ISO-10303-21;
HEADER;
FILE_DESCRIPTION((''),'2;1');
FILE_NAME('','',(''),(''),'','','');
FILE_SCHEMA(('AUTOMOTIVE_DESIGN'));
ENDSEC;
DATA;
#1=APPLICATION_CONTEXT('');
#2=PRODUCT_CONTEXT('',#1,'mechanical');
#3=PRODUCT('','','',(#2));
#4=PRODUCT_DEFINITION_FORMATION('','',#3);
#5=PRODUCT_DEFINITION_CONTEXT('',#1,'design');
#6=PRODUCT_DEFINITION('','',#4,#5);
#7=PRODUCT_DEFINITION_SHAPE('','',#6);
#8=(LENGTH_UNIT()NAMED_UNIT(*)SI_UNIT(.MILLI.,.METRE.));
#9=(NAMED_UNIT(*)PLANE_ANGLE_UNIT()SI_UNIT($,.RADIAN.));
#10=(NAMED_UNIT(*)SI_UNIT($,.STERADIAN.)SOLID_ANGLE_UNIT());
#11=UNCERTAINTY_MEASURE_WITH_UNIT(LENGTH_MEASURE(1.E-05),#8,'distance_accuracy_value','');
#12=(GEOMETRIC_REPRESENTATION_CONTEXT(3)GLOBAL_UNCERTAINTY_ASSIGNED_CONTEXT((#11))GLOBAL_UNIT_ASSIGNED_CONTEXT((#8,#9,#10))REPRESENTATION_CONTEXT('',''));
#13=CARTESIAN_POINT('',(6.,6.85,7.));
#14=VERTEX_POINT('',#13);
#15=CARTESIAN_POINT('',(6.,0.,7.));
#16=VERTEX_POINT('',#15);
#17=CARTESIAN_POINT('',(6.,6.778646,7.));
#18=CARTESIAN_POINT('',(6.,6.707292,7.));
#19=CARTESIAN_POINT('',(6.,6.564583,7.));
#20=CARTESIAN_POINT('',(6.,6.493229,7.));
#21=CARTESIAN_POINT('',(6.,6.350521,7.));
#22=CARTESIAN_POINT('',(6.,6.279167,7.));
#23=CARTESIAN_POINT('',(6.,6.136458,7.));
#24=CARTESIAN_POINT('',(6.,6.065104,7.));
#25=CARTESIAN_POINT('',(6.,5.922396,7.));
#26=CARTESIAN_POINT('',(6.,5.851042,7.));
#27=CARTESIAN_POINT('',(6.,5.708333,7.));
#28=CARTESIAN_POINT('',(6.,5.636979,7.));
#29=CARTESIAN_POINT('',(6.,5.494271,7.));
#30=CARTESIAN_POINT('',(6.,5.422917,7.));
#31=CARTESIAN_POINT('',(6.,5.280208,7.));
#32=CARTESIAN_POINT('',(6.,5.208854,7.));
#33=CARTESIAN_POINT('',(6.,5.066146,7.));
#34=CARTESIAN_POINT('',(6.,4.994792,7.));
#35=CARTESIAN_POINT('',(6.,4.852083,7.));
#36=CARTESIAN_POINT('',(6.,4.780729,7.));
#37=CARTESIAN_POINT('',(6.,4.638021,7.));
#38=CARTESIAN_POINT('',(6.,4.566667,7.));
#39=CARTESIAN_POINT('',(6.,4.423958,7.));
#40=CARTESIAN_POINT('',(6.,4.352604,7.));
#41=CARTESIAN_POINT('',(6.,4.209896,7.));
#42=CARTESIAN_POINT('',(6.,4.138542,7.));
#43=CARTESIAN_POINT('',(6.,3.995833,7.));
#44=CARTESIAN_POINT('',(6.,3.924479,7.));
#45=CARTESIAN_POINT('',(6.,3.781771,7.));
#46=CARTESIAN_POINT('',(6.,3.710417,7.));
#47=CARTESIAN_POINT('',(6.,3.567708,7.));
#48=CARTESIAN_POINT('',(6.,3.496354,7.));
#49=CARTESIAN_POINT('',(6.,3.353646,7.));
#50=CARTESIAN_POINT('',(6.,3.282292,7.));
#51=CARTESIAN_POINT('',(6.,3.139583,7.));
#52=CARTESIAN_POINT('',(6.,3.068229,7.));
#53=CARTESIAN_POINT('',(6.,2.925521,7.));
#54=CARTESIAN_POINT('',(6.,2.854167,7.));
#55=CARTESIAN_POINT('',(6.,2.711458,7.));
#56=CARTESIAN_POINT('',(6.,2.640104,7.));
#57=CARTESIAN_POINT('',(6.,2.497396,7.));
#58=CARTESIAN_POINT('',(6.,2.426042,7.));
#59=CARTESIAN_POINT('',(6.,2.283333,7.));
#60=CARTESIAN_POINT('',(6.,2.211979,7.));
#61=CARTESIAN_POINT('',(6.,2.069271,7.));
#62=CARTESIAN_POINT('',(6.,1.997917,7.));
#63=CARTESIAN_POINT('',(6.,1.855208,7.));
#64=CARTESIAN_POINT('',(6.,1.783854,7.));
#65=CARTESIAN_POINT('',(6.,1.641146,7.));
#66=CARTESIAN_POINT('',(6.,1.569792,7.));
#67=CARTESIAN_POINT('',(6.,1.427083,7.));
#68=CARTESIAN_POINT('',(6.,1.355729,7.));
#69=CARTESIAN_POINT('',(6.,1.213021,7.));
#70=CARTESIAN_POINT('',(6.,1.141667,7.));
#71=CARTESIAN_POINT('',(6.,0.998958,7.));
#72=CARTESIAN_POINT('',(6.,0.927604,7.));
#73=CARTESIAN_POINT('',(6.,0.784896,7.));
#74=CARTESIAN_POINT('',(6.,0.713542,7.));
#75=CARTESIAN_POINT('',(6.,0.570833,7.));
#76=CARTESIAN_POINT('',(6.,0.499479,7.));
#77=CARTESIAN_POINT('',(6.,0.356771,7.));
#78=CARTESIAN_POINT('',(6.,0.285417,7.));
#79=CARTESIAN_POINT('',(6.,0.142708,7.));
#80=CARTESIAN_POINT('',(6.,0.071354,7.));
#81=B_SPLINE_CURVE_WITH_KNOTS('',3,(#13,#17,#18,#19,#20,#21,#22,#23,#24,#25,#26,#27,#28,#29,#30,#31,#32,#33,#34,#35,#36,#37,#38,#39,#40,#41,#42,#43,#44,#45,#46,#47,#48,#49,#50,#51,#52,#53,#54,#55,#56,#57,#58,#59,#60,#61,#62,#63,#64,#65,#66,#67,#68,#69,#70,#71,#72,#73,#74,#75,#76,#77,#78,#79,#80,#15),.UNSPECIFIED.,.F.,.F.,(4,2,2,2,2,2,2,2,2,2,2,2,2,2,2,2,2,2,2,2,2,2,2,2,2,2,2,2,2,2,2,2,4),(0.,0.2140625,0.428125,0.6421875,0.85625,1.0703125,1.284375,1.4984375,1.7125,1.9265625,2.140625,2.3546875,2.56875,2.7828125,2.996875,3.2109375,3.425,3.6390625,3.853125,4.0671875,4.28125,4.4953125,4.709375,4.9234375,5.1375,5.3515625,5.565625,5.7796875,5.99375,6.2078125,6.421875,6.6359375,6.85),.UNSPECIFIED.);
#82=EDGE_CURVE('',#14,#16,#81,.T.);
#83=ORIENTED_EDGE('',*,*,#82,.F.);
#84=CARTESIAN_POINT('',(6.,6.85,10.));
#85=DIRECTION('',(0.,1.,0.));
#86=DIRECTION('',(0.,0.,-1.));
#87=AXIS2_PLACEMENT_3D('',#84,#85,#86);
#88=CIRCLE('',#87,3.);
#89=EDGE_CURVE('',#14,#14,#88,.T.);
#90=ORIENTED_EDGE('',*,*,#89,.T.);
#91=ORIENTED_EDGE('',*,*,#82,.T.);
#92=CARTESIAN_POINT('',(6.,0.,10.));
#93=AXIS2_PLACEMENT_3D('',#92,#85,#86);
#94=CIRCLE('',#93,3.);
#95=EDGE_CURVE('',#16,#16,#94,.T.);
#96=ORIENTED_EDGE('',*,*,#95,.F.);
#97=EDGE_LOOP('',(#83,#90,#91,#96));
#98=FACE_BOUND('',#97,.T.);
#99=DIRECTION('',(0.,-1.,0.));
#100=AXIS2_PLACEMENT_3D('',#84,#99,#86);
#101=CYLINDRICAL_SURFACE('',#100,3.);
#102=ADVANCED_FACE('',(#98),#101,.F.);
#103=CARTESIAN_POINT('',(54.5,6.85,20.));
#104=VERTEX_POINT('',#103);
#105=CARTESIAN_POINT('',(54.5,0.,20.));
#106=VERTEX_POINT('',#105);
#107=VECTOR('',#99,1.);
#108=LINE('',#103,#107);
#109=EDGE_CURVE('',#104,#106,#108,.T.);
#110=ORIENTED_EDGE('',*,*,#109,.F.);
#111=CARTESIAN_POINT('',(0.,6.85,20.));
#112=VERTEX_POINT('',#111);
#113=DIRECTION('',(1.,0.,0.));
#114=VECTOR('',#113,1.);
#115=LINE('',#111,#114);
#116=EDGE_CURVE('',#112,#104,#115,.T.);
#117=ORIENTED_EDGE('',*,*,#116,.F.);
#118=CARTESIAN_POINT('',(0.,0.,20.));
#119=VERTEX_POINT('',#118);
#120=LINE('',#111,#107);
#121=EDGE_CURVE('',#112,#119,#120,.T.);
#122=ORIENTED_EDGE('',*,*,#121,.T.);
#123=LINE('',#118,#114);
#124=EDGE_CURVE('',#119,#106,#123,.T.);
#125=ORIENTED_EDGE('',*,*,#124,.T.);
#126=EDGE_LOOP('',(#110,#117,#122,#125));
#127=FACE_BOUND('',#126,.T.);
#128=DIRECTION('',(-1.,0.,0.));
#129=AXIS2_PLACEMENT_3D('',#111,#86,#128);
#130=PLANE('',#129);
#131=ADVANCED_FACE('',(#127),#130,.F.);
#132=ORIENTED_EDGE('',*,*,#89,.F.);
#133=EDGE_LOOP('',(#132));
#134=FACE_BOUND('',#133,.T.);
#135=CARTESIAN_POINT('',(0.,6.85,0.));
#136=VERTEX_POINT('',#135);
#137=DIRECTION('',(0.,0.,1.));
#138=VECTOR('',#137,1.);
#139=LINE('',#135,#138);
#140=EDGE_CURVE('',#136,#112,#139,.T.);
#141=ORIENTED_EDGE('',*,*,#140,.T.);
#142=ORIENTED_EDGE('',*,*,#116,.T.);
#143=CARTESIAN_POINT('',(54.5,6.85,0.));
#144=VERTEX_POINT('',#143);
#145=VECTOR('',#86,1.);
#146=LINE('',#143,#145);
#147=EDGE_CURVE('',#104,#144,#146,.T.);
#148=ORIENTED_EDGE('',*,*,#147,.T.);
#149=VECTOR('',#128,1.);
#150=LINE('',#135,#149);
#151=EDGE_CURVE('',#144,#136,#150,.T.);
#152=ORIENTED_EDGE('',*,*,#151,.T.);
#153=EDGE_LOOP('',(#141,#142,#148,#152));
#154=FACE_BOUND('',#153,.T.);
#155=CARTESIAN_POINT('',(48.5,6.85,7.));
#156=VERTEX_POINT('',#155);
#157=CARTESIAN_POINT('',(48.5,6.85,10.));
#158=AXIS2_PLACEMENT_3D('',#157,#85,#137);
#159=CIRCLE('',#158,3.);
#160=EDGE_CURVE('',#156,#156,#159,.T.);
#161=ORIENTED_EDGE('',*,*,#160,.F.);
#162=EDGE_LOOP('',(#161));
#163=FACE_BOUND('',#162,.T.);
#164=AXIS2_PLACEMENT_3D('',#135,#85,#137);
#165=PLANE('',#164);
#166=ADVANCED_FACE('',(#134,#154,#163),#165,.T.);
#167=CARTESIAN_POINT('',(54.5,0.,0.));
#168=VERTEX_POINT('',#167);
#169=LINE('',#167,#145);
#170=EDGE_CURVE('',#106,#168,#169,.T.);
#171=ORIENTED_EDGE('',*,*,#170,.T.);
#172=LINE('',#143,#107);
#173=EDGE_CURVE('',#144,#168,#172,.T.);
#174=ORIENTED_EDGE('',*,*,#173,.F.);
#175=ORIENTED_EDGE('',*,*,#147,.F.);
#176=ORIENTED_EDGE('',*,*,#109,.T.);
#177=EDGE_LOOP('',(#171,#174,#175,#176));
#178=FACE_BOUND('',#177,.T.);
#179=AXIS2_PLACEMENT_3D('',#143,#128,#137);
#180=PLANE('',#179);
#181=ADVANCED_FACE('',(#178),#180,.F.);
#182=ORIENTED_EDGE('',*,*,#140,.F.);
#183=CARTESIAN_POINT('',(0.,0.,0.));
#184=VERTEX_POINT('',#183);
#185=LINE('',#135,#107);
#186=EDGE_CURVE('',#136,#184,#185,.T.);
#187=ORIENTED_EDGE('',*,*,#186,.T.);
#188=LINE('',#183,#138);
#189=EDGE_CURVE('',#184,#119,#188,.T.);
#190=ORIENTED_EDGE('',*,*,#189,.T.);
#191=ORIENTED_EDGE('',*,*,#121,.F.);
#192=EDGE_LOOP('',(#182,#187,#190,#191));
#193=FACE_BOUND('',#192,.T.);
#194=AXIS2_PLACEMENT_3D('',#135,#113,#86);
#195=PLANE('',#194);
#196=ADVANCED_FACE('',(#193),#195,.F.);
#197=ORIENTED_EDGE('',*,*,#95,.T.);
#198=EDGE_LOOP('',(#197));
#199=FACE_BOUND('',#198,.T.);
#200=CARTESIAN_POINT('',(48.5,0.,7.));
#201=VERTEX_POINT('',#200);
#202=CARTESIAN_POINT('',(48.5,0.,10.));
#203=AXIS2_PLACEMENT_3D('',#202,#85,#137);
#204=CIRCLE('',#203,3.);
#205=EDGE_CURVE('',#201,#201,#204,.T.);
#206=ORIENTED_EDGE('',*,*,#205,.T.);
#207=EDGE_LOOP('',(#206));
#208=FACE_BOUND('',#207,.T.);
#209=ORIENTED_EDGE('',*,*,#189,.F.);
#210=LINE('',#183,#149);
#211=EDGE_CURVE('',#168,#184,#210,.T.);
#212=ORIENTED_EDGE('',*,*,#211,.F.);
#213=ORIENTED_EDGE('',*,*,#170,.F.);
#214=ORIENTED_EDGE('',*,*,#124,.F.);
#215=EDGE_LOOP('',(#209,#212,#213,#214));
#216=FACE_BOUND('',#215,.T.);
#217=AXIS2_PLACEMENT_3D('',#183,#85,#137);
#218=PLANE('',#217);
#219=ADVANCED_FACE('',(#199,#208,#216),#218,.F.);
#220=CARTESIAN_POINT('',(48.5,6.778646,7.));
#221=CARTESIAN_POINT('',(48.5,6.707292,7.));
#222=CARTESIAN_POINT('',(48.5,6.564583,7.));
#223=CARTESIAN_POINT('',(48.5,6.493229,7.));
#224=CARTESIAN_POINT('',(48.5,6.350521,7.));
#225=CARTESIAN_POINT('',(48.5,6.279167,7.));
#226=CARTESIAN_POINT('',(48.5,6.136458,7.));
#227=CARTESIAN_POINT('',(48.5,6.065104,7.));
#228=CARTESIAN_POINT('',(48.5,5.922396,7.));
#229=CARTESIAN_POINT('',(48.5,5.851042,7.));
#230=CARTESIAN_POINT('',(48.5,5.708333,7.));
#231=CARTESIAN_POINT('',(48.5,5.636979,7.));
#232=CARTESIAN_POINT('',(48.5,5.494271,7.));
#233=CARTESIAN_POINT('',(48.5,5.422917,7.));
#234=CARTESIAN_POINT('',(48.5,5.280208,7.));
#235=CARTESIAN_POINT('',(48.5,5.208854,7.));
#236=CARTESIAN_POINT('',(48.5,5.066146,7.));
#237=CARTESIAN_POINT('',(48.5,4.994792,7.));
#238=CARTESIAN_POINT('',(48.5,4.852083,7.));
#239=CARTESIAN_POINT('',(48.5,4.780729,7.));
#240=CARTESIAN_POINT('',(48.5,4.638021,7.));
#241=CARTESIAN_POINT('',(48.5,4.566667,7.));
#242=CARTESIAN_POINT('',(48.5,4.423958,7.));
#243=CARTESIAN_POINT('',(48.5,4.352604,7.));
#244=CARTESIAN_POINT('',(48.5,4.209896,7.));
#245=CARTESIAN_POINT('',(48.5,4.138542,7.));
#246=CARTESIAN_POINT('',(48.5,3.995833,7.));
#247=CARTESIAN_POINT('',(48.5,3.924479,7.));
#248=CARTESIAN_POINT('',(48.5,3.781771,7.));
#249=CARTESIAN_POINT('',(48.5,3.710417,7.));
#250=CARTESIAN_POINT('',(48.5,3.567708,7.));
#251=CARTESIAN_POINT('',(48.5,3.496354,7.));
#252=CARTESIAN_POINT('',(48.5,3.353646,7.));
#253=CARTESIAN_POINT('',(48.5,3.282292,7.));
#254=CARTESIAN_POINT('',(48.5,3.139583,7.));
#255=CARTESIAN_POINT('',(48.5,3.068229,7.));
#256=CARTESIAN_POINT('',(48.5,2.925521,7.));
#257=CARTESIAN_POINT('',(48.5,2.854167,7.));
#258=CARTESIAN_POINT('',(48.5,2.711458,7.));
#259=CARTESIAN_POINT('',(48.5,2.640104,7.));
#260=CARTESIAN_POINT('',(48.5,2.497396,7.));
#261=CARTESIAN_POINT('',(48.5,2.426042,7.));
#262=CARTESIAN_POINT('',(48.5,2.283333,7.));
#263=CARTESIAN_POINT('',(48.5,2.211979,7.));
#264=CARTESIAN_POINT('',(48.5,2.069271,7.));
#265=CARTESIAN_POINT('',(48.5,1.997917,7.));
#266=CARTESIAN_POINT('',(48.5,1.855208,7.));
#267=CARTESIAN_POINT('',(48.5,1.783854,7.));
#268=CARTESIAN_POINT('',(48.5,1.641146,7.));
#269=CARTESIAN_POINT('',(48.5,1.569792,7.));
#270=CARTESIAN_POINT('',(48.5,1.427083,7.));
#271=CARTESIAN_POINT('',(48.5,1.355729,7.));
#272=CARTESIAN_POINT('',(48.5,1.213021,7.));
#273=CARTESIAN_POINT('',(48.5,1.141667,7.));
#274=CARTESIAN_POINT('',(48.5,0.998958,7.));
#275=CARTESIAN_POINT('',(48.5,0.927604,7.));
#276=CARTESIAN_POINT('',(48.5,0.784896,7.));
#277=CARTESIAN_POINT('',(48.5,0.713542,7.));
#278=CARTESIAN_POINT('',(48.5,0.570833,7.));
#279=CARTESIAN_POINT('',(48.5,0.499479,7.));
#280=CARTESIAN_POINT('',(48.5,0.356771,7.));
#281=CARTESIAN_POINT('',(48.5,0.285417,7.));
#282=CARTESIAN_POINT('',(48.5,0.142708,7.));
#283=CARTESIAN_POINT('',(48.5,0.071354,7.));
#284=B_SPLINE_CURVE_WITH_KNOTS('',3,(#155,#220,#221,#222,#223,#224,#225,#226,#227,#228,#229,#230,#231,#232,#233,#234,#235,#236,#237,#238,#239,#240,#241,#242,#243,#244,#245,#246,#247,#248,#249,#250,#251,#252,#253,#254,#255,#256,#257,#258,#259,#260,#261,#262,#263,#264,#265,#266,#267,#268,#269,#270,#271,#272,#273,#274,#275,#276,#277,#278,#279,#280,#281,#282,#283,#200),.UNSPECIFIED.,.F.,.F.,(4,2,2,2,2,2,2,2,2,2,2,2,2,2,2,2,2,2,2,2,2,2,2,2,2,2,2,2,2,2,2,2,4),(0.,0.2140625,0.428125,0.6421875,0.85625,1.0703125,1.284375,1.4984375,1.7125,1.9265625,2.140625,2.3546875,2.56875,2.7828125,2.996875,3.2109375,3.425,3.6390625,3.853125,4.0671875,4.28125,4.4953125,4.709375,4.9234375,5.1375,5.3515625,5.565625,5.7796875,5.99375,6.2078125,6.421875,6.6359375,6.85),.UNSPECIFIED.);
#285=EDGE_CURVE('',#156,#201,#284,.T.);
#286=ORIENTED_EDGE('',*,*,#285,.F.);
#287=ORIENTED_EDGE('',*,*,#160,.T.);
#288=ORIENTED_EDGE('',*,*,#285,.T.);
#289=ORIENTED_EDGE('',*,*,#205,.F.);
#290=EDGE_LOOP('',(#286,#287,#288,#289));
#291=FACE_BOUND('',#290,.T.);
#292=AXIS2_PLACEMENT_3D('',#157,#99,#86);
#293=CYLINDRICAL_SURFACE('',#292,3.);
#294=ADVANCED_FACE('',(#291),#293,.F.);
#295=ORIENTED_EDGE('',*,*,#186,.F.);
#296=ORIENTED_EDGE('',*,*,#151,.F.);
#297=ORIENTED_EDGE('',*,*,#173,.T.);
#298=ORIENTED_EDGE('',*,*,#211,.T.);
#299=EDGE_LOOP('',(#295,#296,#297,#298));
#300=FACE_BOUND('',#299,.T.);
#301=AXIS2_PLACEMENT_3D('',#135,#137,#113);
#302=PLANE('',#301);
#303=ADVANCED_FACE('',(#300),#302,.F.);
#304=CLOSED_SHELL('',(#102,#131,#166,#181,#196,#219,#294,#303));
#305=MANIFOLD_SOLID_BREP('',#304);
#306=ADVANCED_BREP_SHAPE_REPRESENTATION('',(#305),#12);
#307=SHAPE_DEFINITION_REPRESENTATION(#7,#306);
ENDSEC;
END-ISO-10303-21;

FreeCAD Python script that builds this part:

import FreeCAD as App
import Part
import Sketcher

V = App.Vector
Q = App.Units.Quantity

doc = App.newDocument("Part")
body = doc.addObject("PartDesign::Body", "Body")

sketch1 = body.newObject("Sketcher::SketchObject", "Sketch")
sketch1.AttachmentSupport = (doc.getObject("XZ_Plane"), [""])
sketch1.MapMode = "FlatFace"
sketch1.addGeometry([
    Part.LineSegment(V(0, 0, 0), V(0, 20, 0)),
    Part.LineSegment(V(0, 20, 0), V(54.5, 20, 0)),
    Part.LineSegment(V(54.5, 20, 0), V(54.5, 0, 0)),
    Part.LineSegment(V(54.5, 0, 0), V(0, 0, 0)),
    Part.Circle(V(6, 10, 0), V(0, 0, 1), 3),
    Part.Circle(V(48.5, 10, 0), V(0, 0, 1), 3),
], False)
sketch1.addConstraint([
    Sketcher.Constraint("Coincident", 0, 2, 1, 1),
    Sketcher.Constraint("Coincident", 1, 2, 2, 1),
    Sketcher.Constraint("Coincident", 2, 2, 3, 1),
    Sketcher.Constraint("Coincident", 3, 2, 0, 1),
    Sketcher.Constraint("Vertical", 0),
    Sketcher.Constraint("Horizontal", 1),
    Sketcher.Constraint("Vertical", 2),
    Sketcher.Constraint("Horizontal", 3),
    Sketcher.Constraint("Coincident", 3, 2, -1, 1),
    Sketcher.Constraint("Equal", 4, 5),
    Sketcher.Constraint("Horizontal", 4, 3, 5, 3),
    Sketcher.Constraint("Diameter", 4, Q("6 mm")),
    Sketcher.Constraint("DistanceY", 0, 1, 0, 2, Q("20 mm")),
    Sketcher.Constraint("DistanceX", 1, 1, 1, 2, Q("54.5 mm")),
    Sketcher.Constraint("DistanceX", -1, 1, 4, 3, Q("6 mm")),
    Sketcher.Constraint("DistanceY", -1, 1, 4, 3, Q("10 mm")),
    Sketcher.Constraint("DistanceX", 5, 3, 1, 2, Q("6 mm")),
])
pad1 = body.newObject("PartDesign::Pad", "Pad")
pad1.Profile = sketch1
pad1.Length = 6.85
pad1.Reversed = True

doc.recompute()
